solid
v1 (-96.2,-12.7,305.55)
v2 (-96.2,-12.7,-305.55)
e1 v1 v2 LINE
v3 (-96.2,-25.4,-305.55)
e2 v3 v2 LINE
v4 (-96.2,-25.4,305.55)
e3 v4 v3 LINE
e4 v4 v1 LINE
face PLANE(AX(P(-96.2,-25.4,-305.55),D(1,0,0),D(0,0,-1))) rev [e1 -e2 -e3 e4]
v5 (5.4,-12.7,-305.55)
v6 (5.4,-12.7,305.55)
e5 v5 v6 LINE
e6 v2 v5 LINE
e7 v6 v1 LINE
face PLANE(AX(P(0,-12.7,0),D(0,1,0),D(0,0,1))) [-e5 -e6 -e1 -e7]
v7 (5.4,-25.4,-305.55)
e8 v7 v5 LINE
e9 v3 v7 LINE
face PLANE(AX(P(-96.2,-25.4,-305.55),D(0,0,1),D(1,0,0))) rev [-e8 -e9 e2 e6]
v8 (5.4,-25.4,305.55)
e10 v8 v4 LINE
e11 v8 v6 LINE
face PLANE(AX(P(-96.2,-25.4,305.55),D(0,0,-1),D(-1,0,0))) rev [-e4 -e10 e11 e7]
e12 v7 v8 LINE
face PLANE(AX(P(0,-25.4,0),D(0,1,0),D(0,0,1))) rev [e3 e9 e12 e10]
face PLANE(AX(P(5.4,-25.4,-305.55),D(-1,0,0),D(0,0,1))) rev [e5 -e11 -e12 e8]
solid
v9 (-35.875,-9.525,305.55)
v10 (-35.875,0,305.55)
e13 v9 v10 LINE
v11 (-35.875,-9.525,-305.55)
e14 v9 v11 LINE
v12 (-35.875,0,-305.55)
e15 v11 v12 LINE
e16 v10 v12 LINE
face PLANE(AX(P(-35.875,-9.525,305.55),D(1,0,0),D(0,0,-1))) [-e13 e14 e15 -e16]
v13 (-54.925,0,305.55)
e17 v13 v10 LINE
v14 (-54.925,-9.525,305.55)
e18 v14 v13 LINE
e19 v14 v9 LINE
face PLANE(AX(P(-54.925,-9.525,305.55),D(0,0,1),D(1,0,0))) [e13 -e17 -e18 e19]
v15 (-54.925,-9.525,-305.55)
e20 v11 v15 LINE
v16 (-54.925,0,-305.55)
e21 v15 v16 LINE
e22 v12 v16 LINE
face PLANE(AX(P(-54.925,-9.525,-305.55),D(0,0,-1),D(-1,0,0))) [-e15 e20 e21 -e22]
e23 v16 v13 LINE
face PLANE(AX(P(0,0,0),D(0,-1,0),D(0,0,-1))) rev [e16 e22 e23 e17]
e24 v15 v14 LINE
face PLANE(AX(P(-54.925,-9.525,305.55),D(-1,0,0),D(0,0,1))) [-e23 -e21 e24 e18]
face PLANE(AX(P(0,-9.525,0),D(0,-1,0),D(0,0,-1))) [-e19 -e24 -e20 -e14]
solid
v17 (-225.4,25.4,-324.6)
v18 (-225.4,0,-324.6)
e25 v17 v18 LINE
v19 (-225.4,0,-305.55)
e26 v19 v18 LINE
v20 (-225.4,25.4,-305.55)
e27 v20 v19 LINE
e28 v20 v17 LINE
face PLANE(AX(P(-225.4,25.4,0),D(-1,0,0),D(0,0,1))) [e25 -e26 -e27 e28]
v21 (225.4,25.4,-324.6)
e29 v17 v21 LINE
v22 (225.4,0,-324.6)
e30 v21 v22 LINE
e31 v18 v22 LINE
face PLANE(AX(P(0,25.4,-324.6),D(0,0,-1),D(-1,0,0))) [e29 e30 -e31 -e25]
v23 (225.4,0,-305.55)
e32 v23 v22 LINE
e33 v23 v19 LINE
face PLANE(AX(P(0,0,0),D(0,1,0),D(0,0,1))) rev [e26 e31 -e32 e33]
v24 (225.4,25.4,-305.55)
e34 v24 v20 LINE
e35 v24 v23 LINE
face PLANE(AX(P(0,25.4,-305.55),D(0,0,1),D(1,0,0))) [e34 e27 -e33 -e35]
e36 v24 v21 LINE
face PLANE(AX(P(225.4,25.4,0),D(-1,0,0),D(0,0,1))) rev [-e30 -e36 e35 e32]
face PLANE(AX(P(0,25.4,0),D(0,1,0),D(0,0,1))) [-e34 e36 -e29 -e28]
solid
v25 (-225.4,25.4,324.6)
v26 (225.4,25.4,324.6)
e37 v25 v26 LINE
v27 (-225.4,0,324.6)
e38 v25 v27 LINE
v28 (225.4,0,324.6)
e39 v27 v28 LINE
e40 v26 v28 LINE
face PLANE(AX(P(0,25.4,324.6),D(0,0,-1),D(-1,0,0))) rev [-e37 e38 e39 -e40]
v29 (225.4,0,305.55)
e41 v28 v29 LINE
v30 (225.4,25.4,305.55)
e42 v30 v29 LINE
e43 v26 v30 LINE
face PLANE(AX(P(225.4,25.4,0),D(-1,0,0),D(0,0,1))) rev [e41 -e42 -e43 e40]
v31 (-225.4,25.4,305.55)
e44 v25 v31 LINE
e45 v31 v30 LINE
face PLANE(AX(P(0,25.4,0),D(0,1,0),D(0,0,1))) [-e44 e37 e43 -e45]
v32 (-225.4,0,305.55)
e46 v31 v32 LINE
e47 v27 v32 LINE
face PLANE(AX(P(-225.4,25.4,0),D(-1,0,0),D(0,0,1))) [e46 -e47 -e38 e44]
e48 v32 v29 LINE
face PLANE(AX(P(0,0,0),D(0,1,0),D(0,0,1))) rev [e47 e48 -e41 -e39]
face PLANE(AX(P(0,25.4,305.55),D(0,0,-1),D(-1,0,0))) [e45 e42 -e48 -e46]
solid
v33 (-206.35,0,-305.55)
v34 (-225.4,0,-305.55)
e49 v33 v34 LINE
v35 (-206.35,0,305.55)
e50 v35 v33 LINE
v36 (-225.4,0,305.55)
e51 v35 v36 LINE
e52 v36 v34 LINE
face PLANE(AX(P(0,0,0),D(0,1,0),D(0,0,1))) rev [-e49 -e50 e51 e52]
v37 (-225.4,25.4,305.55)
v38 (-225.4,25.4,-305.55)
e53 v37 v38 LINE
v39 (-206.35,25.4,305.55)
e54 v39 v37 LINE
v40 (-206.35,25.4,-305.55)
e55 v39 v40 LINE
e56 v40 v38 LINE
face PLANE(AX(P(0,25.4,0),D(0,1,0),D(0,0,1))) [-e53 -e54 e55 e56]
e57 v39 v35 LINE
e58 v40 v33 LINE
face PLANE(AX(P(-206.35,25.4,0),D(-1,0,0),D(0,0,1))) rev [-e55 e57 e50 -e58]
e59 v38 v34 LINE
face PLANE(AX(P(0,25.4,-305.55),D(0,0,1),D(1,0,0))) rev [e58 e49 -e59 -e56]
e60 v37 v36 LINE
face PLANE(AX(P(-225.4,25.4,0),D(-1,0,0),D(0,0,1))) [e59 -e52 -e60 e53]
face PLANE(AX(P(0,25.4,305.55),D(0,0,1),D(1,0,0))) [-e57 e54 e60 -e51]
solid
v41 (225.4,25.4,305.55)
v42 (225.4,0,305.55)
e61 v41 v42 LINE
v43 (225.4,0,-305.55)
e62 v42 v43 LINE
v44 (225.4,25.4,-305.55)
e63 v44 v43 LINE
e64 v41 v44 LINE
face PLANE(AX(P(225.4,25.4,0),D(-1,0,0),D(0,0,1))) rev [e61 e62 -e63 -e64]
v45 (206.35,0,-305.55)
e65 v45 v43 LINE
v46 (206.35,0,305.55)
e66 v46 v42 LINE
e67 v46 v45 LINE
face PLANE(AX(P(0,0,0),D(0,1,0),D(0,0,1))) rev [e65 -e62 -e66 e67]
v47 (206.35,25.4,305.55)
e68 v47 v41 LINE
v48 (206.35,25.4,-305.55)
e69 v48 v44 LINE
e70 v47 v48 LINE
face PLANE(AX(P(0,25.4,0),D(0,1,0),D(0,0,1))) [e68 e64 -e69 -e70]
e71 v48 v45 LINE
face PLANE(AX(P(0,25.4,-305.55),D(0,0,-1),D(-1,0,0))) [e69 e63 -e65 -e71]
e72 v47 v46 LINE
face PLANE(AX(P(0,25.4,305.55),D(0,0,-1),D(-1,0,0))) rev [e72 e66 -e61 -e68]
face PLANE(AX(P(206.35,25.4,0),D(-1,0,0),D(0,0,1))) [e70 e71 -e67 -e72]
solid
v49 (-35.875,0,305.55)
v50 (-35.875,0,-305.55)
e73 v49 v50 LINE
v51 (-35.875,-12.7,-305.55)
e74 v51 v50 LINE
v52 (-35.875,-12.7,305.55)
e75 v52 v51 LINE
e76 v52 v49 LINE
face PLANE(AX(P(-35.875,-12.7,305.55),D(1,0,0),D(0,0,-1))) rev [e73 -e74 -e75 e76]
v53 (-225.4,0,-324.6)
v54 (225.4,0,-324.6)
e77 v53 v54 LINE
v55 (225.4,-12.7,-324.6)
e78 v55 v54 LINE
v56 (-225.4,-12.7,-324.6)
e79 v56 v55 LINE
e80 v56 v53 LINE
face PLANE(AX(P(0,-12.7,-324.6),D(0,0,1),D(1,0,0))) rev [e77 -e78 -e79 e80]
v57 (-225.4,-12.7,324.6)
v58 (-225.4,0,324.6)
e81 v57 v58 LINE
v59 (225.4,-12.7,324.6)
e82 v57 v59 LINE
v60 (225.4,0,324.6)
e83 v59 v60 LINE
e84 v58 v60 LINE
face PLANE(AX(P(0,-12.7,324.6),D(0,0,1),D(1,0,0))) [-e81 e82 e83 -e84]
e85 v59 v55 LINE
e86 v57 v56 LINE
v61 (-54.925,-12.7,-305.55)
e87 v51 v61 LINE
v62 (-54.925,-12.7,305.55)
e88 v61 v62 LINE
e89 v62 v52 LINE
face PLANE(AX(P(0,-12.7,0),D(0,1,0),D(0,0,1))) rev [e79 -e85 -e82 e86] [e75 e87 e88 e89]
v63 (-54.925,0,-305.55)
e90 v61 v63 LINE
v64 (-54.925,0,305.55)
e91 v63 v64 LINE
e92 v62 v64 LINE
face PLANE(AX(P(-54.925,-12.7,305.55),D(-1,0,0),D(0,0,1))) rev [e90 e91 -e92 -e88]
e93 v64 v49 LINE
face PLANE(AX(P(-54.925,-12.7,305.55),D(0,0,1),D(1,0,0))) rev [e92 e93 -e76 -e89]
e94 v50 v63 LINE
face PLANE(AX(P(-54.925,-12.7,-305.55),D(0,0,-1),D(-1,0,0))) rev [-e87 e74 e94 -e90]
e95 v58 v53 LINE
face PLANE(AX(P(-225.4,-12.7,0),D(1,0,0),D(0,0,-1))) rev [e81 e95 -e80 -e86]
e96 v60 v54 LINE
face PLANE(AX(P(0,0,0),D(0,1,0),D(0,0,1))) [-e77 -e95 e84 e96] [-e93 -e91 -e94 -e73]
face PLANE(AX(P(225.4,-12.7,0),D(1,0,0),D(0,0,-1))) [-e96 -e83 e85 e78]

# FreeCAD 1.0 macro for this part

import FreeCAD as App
import Part
import Sketcher

V = App.Vector
Q = App.Units.Quantity


def add_polygon(sketch, points):
    """Adds a closed chain of lines whose ends are joined by coincident constraints."""
    first, n = sketch.GeometryCount, len(points)
    for a, b in zip(points, points[1:] + points[:1]):
        sketch.addGeometry(Part.LineSegment(App.Vector(*a, 0), App.Vector(*b, 0)), False)
    for i in range(n):
        sketch.addConstraint(Sketcher.Constraint("Coincident", first + i, 2, first + (i + 1) % n, 1))

doc = App.newDocument("Part")
body = doc.addObject("PartDesign::Body", "Body")

# Sketch on XZ plane
sketch1 = body.newObject("Sketcher::SketchObject", "Sketch")
sketch1.AttachmentSupport = (doc.getObject("XZ_Plane"), [""])
sketch1.MapMode = "FlatFace"
add_polygon(sketch1, [(225.4, -324.6), (-225.4, -324.6), (-225.4, 324.6), (225.4, 324.6)])  # lines 0-3
sketch1.addConstraint(Sketcher.Constraint("Horizontal", 0))
sketch1.addConstraint(Sketcher.Constraint("Vertical", 1))
sketch1.addConstraint(Sketcher.Constraint("Horizontal", 2))
sketch1.addConstraint(Sketcher.Constraint("Vertical", 3))
sketch1.addConstraint(Sketcher.Constraint("Symmetric", 0, 2, 2, 2, -1, 1))
sketch1.addConstraint(Sketcher.Constraint("DistanceX", 0, 2, 0, 1, Q("450.8 mm")))
sketch1.addConstraint(Sketcher.Constraint("DistanceY", 1, 1, 1, 2, Q("649.2 mm")))
pad1 = body.newObject("PartDesign::Pad", "Pad")
pad1.Profile = sketch1
pad1.Length = Q("0.5 in")

# Sketch on XZ plane
sketch2 = body.newObject("Sketcher::SketchObject", "Sketch001")
sketch2.AttachmentSupport = (doc.getObject("XZ_Plane"), [""])
sketch2.MapMode = "FlatFace"
add_polygon(sketch2, [(-54.925, -305.55), (-54.925, 305.55), (-35.875, 305.55), (-35.875, -305.55)])  # lines 0-3
sketch2.addConstraint(Sketcher.Constraint("Vertical", 0))
sketch2.addConstraint(Sketcher.Constraint("Horizontal", 1))
sketch2.addConstraint(Sketcher.Constraint("Vertical", 2))
sketch2.addConstraint(Sketcher.Constraint("Horizontal", 3))
sketch2.addConstraint(Sketcher.Constraint("DistanceX", 1, 1, 1, 2, Q("0.75 in")))
sketch2.addConstraint(Sketcher.Constraint("DistanceY", 0, 1, 0, 2, Q("611.1 mm")))
sketch2.addConstraint(Sketcher.Constraint("DistanceX", 0, 2, -1, 1, Q("54.925 mm")))
sketch2.addConstraint(Sketcher.Constraint("DistanceY", -1, 1, 0, 2, Q("305.55 mm")))
pocket1 = body.newObject("PartDesign::Pocket", "Pocket")
pocket1.Profile = sketch2
pocket1.Length = Q("0.5 in")
pocket1.Reversed = True
body2 = doc.addObject("PartDesign::Body", "Body001")

# Sketch on XZ plane
sketch3 = body2.newObject("Sketcher::SketchObject", "Sketch002")
sketch3.AttachmentSupport = (doc.getObject("XZ_Plane001"), [""])
sketch3.MapMode = "FlatFace"
add_polygon(sketch3, [(-225.4, -305.55), (-225.4, 305.55), (-206.35, 305.55), (-206.35, -305.55)])  # lines 0-3
sketch3.addConstraint(Sketcher.Constraint("Vertical", 0))
sketch3.addConstraint(Sketcher.Constraint("Horizontal", 1))
sketch3.addConstraint(Sketcher.Constraint("Vertical", 2))
sketch3.addConstraint(Sketcher.Constraint("Horizontal", 3))
sketch3.addConstraint(Sketcher.Constraint("DistanceX", 1, 1, 1, 2, Q("0.75 in")))
sketch3.addConstraint(Sketcher.Constraint("DistanceY", 0, 1, 0, 2, Q("611.1 mm")))
sketch3.addConstraint(Sketcher.Constraint("DistanceX", 0, 2, -1, 1, Q("225.4 mm")))
sketch3.addConstraint(Sketcher.Constraint("DistanceY", -1, 1, 0, 2, Q("305.55 mm")))
pad2 = body2.newObject("PartDesign::Pad", "Pad001")
pad2.Profile = sketch3
pad2.Length = Q("1 in")
pad2.Reversed = True
body3 = doc.addObject("PartDesign::Body", "Body002")

# Sketch on XZ plane
sketch4 = body3.newObject("Sketcher::SketchObject", "Sketch003")
sketch4.AttachmentSupport = (doc.getObject("XZ_Plane002"), [""])
sketch4.MapMode = "FlatFace"
add_polygon(sketch4, [(206.35, -305.55), (206.35, 305.55), (225.4, 305.55), (225.4, -305.55)])  # lines 0-3
sketch4.addConstraint(Sketcher.Constraint("Vertical", 0))
sketch4.addConstraint(Sketcher.Constraint("Horizontal", 1))
sketch4.addConstraint(Sketcher.Constraint("Vertical", 2))
sketch4.addConstraint(Sketcher.Constraint("Horizontal", 3))
sketch4.addConstraint(Sketcher.Constraint("DistanceX", 1, 1, 1, 2, Q("0.75 in")))
sketch4.addConstraint(Sketcher.Constraint("DistanceY", 0, 1, 0, 2, Q("611.1 mm")))
sketch4.addConstraint(Sketcher.Constraint("DistanceX", -1, 1, 0, 2, Q("206.35 mm")))
sketch4.addConstraint(Sketcher.Constraint("DistanceY", -1, 1, 0, 2, Q("305.55 mm")))
pad3 = body3.newObject("PartDesign::Pad", "Pad002")
pad3.Profile = sketch4
pad3.Length = Q("1 in")
pad3.Reversed = True
body4 = doc.addObject("PartDesign::Body", "Body003")

# Sketch on XZ plane
sketch5 = body4.newObject("Sketcher::SketchObject", "Sketch004")
sketch5.AttachmentSupport = (doc.getObject("XZ_Plane003"), [""])
sketch5.MapMode = "FlatFace"
add_polygon(sketch5, [(225.4, -305.55), (225.4, -324.6), (-225.4, -324.6), (-225.4, -305.55)])  # lines 0-3
sketch5.addConstraint(Sketcher.Constraint("Vertical", 0))
sketch5.addConstraint(Sketcher.Constraint("Horizontal", 1))
sketch5.addConstraint(Sketcher.Constraint("Vertical", 2))
sketch5.addConstraint(Sketcher.Constraint("Horizontal", 3))
sketch5.addConstraint(Sketcher.Constraint("DistanceY", 0, 2, 0, 1, Q("0.75 in")))
sketch5.addConstraint(Sketcher.Constraint("DistanceX", 1, 2, 1, 1, Q("450.8 mm")))
sketch5.addConstraint(Sketcher.Constraint("DistanceX", -1, 1, 0, 2, Q("225.4 mm")))
sketch5.addConstraint(Sketcher.Constraint("DistanceY", 0, 2, -1, 1, Q("324.6 mm")))
pad4 = body4.newObject("PartDesign::Pad", "Pad003")
pad4.Profile = sketch5
pad4.Length = Q("1 in")
pad4.Reversed = True
body5 = doc.addObject("PartDesign::Body", "Body004")

# Sketch on XZ plane
sketch6 = body5.newObject("Sketcher::SketchObject", "Sketch005")
sketch6.AttachmentSupport = (doc.getObject("XZ_Plane004"), [""])
sketch6.MapMode = "FlatFace"
add_polygon(sketch6, [(225.4, 305.55), (-225.4, 305.55), (-225.4, 324.6), (225.4, 324.6)])  # lines 0-3
sketch6.addConstraint(Sketcher.Constraint("Horizontal", 0))
sketch6.addConstraint(Sketcher.Constraint("Vertical", 1))
sketch6.addConstraint(Sketcher.Constraint("Horizontal", 2))
sketch6.addConstraint(Sketcher.Constraint("Vertical", 3))
sketch6.addConstraint(Sketcher.Constraint("DistanceY", 1, 1, 1, 2, Q("0.75 in")))
sketch6.addConstraint(Sketcher.Constraint("DistanceX", 0, 2, 0, 1, Q("450.8 mm")))
sketch6.addConstraint(Sketcher.Constraint("DistanceX", 0, 2, -1, 1, Q("225.4 mm")))
sketch6.addConstraint(Sketcher.Constraint("DistanceY", -1, 1, 0, 2, Q("305.55 mm")))
pad5 = body5.newObject("PartDesign::Pad", "Pad004")
pad5.Profile = sketch6
pad5.Length = Q("1 in")
pad5.Reversed = True
body6 = doc.addObject("PartDesign::Body", "Body005")

# Sketch on XZ plane
sketch7 = body6.newObject("Sketcher::SketchObject", "Sketch006")
sketch7.AttachmentSupport = (doc.getObject("XZ_Plane005"), [""])
sketch7.MapMode = "FlatFace"
sketch7.AttachmentOffset = App.Placement(V(0, 0, 0.5 * 25.4), App.Rotation())
add_polygon(sketch7, [(-96.2, 305.55), (-96.2, -305.55), (5.4, -305.55), (5.4, 305.55)])  # lines 0-3
sketch7.addConstraint(Sketcher.Constraint("Vertical", 0))
sketch7.addConstraint(Sketcher.Constraint("Horizontal", 1))
sketch7.addConstraint(Sketcher.Constraint("Vertical", 2))
sketch7.addConstraint(Sketcher.Constraint("Horizontal", 3))
sketch7.addConstraint(Sketcher.Constraint("DistanceX", 1, 1, 1, 2, Q("4 in")))
sketch7.addConstraint(Sketcher.Constraint("DistanceY", 0, 2, 0, 1, Q("611.1 mm")))
sketch7.addConstraint(Sketcher.Constraint("DistanceX", 0, 2, -1, 1, Q("96.2 mm")))
sketch7.addConstraint(Sketcher.Constraint("DistanceY", 0, 2, -1, 1, Q("305.55 mm")))
pad6 = body6.newObject("PartDesign::Pad", "Pad005")
pad6.Profile = sketch7
pad6.Length = Q("0.5 in")
body7 = doc.addObject("PartDesign::Body", "Body006")

# Sketch on XZ plane
sketch8 = body7.newObject("Sketcher::SketchObject", "Sketch007")
sketch8.AttachmentSupport = (doc.getObject("XZ_Plane006"), [""])
sketch8.MapMode = "FlatFace"
add_polygon(sketch8, [(-54.925, -305.55), (-54.925, 305.55), (-35.875, 305.55), (-35.875, -305.55)])  # lines 0-3
sketch8.addConstraint(Sketcher.Constraint("Vertical", 0))
sketch8.addConstraint(Sketcher.Constraint("Horizontal", 1))
sketch8.addConstraint(Sketcher.Constraint("Vertical", 2))
sketch8.addConstraint(Sketcher.Constraint("Horizontal", 3))
sketch8.addConstraint(Sketcher.Constraint("DistanceX", 1, 1, 1, 2, Q("0.75 in")))
sketch8.addConstraint(Sketcher.Constraint("DistanceY", 0, 1, 0, 2, Q("611.1 mm")))
sketch8.addConstraint(Sketcher.Constraint("DistanceX", 0, 2, -1, 1, Q("54.925 mm")))
sketch8.addConstraint(Sketcher.Constraint("DistanceY", -1, 1, 0, 2, Q("305.55 mm")))
pad7 = body7.newObject("PartDesign::Pad", "Pad006")
pad7.Profile = sketch8
pad7.Length = Q("0.375 in")

doc.recompute()
